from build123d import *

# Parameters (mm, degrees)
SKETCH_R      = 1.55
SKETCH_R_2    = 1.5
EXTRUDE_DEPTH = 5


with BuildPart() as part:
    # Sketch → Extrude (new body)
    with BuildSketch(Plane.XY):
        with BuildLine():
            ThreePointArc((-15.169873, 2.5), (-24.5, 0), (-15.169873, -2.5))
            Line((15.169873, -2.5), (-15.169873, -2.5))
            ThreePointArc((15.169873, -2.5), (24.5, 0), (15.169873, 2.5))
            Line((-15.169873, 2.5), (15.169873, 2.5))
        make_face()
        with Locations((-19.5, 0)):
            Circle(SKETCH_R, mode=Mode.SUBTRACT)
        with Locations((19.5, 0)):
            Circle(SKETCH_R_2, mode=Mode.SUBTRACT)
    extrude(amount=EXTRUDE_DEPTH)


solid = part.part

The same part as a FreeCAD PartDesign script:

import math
import FreeCAD as App
import Part
import Sketcher
from FreeCAD import Vector

doc = App.newDocument("Part")
body = doc.addObject("PartDesign::Body", "Body")

# Sketch on XY plane
sketch1 = body.newObject("Sketcher::SketchObject", "Sketch")
sketch1.AttachmentSupport = (doc.getObject("XY_Plane"), [""])
sketch1.MapMode = "FlatFace"
sketch1.addGeometry([
    Part.ArcOfCircle(Part.Circle(Vector(-19.5, 0, 0), Vector(0, 0, 1), 5), math.radians(30), math.radians(330)),  # 0
    Part.LineSegment(Vector(-15.169873, -2.5, 0), Vector(15.169873, -2.5, 0)),  # 1
    Part.ArcOfCircle(Part.Circle(Vector(19.5, 0, 0), Vector(0, 0, 1), 5), math.radians(-150), math.radians(150)),  # 2
    Part.LineSegment(Vector(15.169873, 2.5, 0), Vector(-15.169873, 2.5, 0)),  # 3
    Part.Circle(Vector(-19.5, 0, 0), Vector(0, 0, 1), 1.55),  # 4
    Part.Circle(Vector(19.5, 0, 0), Vector(0, 0, 1), 1.5),  # 5
], False)
sketch1.addConstraint([
    Sketcher.Constraint("Coincident", 0, 2, 1, 1),
    Sketcher.Constraint("Coincident", 1, 2, 2, 1),
    Sketcher.Constraint("Coincident", 2, 2, 3, 1),
    Sketcher.Constraint("Coincident", 3, 2, 0, 1),
    Sketcher.Constraint("Horizontal", 1),
    Sketcher.Constraint("Horizontal", 3),
    Sketcher.Constraint("Coincident", 4, 3, 0, 3),
    Sketcher.Constraint("Coincident", 5, 3, 2, 3),
    Sketcher.Constraint("Equal", 0, 2),
    Sketcher.Constraint("Symmetric", 0, 3, 2, 3, -1, 1),
    Sketcher.Constraint("Symmetric", 1, 2, 2, 2, -1),
    Sketcher.Constraint("Diameter", 5, 3.0),
    Sketcher.Constraint("Radius", 0, 5.0),
    Sketcher.Constraint("Diameter", 4, 3.1),
    Sketcher.Constraint("DistanceX", 0, 3, 2, 3, 39.0),
    Sketcher.Constraint("DistanceY", 1, 2, 2, 2, 5.0),
])
pad1 = body.newObject("PartDesign::Pad", "Pad")
pad1.Profile = sketch1
pad1.Length = 5

doc.recompute()
